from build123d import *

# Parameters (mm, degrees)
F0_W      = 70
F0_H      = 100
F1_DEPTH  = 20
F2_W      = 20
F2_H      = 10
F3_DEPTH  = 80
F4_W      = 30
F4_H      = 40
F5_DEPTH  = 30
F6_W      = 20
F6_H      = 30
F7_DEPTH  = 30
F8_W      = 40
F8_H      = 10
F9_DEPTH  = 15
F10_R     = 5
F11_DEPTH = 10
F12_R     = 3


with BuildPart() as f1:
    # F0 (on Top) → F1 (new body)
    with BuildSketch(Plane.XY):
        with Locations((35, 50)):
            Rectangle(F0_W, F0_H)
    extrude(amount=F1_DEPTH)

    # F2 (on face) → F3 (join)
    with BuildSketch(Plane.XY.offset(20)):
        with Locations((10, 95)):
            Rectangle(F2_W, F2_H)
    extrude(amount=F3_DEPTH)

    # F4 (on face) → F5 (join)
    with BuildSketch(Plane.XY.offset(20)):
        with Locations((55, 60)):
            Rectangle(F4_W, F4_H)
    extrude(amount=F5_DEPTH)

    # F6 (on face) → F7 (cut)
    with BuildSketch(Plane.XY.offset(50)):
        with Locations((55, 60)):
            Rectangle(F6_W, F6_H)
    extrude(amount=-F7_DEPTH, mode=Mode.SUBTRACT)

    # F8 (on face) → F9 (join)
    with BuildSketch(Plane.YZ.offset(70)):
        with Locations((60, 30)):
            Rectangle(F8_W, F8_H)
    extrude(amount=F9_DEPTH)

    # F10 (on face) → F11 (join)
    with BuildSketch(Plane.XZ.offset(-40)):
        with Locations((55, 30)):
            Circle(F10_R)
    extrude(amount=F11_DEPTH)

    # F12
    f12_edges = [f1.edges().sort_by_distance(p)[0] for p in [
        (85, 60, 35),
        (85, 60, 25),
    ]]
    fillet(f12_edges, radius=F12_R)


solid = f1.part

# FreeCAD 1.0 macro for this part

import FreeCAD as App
import Part
import Sketcher
from FreeCAD import Vector


def edges_at(feature, points):
    """Names of the edges that pass closest to the given points."""
    edges = feature.Shape.Edges
    near = lambda p: min(range(len(edges)), key=lambda i: edges[i].distToShape(Part.Vertex(*p))[0])
    return sorted({f"Edge{near(p) + 1}" for p in points})


def add_polygon(sketch, points):
    """Adds a closed chain of lines whose ends are joined by coincident constraints."""
    first, n = sketch.GeometryCount, len(points)
    for a, b in zip(points, points[1:] + points[:1]):
        sketch.addGeometry(Part.LineSegment(App.Vector(*a, 0), App.Vector(*b, 0)), False)
    for i in range(n):
        sketch.addConstraint(Sketcher.Constraint("Coincident", first + i, 2, first + (i + 1) % n, 1))

doc = App.newDocument("Part")
body = doc.addObject("PartDesign::Body", "Body")

# Sketch on XY plane
sketch1 = body.newObject("Sketcher::SketchObject", "Sketch")
sketch1.AttachmentSupport = (doc.getObject("XY_Plane"), [""])
sketch1.MapMode = "FlatFace"
add_polygon(sketch1, [(0, 100), (0, 0), (70, 0), (70, 100)])  # lines 0-3
sketch1.addConstraint([
    Sketcher.Constraint("Vertical", 0),
    Sketcher.Constraint("Horizontal", 1),
    Sketcher.Constraint("Vertical", 2),
    Sketcher.Constraint("Horizontal", 3),
    Sketcher.Constraint("Coincident", 0, 2, -1, 1),
    Sketcher.Constraint("DistanceX", 1, 1, 1, 2, 70.0),
    Sketcher.Constraint("DistanceY", 0, 2, 0, 1, 100.0),
])
pad1 = body.newObject("PartDesign::Pad", "Pad")
pad1.Profile = sketch1
pad1.Length = 20

# Sketch on XY plane
sketch2 = body.newObject("Sketcher::SketchObject", "Sketch001")
sketch2.AttachmentSupport = (doc.getObject("XY_Plane"), [""])
sketch2.MapMode = "FlatFace"
sketch2.AttachmentOffset = App.Placement(Vector(0, 0, 20), App.Rotation())
add_polygon(sketch2, [(0, 100), (0, 90), (20, 90), (20, 100)])  # lines 0-3
sketch2.addConstraint([
    Sketcher.Constraint("Vertical", 0),
    Sketcher.Constraint("Horizontal", 1),
    Sketcher.Constraint("Vertical", 2),
    Sketcher.Constraint("Horizontal", 3),
    Sketcher.Constraint("PointOnObject", 0, 2, -2),
    Sketcher.Constraint("DistanceX", 1, 1, 1, 2, 20.0),
    Sketcher.Constraint("DistanceY", 0, 2, 0, 1, 10.0),
    Sketcher.Constraint("DistanceY", -1, 1, 0, 2, 90.0),
])
pad2 = body.newObject("PartDesign::Pad", "Pad001")
pad2.Profile = sketch2
pad2.Length = 80

# Sketch on XY plane
sketch3 = body.newObject("Sketcher::SketchObject", "Sketch002")
sketch3.AttachmentSupport = (doc.getObject("XY_Plane"), [""])
sketch3.MapMode = "FlatFace"
sketch3.AttachmentOffset = App.Placement(Vector(0, 0, 20), App.Rotation())
add_polygon(sketch3, [(40, 80), (40, 40), (70, 40), (70, 80)])  # lines 0-3
sketch3.addConstraint([
    Sketcher.Constraint("Vertical", 0),
    Sketcher.Constraint("Horizontal", 1),
    Sketcher.Constraint("Vertical", 2),
    Sketcher.Constraint("Horizontal", 3),
    Sketcher.Constraint("DistanceX", 1, 1, 1, 2, 30.0),
    Sketcher.Constraint("DistanceY", 0, 2, 0, 1, 40.0),
    Sketcher.Constraint("DistanceX", -1, 1, 0, 2, 40.0),
    Sketcher.Constraint("DistanceY", -1, 1, 0, 2, 40.0),
])
pad3 = body.newObject("PartDesign::Pad", "Pad002")
pad3.Profile = sketch3
pad3.Length = 30

# Sketch on XY plane
sketch4 = body.newObject("Sketcher::SketchObject", "Sketch003")
sketch4.AttachmentSupport = (doc.getObject("XY_Plane"), [""])
sketch4.MapMode = "FlatFace"
sketch4.AttachmentOffset = App.Placement(Vector(0, 0, 50), App.Rotation())
add_polygon(sketch4, [(45, 75), (45, 45), (65, 45), (65, 75)])  # lines 0-3
sketch4.addConstraint([
    Sketcher.Constraint("Vertical", 0),
    Sketcher.Constraint("Horizontal", 1),
    Sketcher.Constraint("Vertical", 2),
    Sketcher.Constraint("Horizontal", 3),
    Sketcher.Constraint("DistanceX", 1, 1, 1, 2, 20.0),
    Sketcher.Constraint("DistanceY", 0, 2, 0, 1, 30.0),
    Sketcher.Constraint("DistanceX", -1, 1, 0, 2, 45.0),
    Sketcher.Constraint("DistanceY", -1, 1, 0, 2, 45.0),
])
pocket1 = body.newObject("PartDesign::Pocket", "Pocket")
pocket1.Profile = sketch4
pocket1.Length = 30

# Sketch on YZ plane
sketch5 = body.newObject("Sketcher::SketchObject", "Sketch004")
sketch5.AttachmentSupport = (doc.getObject("YZ_Plane"), [""])
sketch5.MapMode = "FlatFace"
sketch5.AttachmentOffset = App.Placement(Vector(0, 0, 70), App.Rotation())
add_polygon(sketch5, [(40, 35), (40, 25), (80, 25), (80, 35)])  # lines 0-3
sketch5.addConstraint([
    Sketcher.Constraint("Vertical", 0),
    Sketcher.Constraint("Horizontal", 1),
    Sketcher.Constraint("Vertical", 2),
    Sketcher.Constraint("Horizontal", 3),
    Sketcher.Constraint("DistanceX", 1, 1, 1, 2, 40.0),
    Sketcher.Constraint("DistanceY", 0, 2, 0, 1, 10.0),
    Sketcher.Constraint("DistanceX", -1, 1, 0, 2, 40.0),
    Sketcher.Constraint("DistanceY", -1, 1, 0, 2, 25.0),
])
pad4 = body.newObject("PartDesign::Pad", "Pad003")
pad4.Profile = sketch5
pad4.Length = 15

# Sketch on XZ plane
sketch6 = body.newObject("Sketcher::SketchObject", "Sketch005")
sketch6.AttachmentSupport = (doc.getObject("XZ_Plane"), [""])
sketch6.MapMode = "FlatFace"
sketch6.AttachmentOffset = App.Placement(Vector(0, 0, -40), App.Rotation())
sketch6.addGeometry(Part.Circle(Vector(55, 30, 0), Vector(0, 0, 1), 5), False)
sketch6.addConstraint([
    Sketcher.Constraint("Diameter", 0, 10.0),
    Sketcher.Constraint("DistanceX", -1, 1, 0, 3, 55.0),
    Sketcher.Constraint("DistanceY", -1, 1, 0, 3, 30.0),
])
pad5 = body.newObject("PartDesign::Pad", "Pad004")
pad5.Profile = sketch6
pad5.Length = 10
doc.recompute()

fillet = body.newObject("PartDesign::Fillet", "Fillet")
fillet.Base = (pad5, edges_at(pad5, [(85, 60, 35), (85, 60, 25)]))
fillet.Radius = 3

doc.recompute()
